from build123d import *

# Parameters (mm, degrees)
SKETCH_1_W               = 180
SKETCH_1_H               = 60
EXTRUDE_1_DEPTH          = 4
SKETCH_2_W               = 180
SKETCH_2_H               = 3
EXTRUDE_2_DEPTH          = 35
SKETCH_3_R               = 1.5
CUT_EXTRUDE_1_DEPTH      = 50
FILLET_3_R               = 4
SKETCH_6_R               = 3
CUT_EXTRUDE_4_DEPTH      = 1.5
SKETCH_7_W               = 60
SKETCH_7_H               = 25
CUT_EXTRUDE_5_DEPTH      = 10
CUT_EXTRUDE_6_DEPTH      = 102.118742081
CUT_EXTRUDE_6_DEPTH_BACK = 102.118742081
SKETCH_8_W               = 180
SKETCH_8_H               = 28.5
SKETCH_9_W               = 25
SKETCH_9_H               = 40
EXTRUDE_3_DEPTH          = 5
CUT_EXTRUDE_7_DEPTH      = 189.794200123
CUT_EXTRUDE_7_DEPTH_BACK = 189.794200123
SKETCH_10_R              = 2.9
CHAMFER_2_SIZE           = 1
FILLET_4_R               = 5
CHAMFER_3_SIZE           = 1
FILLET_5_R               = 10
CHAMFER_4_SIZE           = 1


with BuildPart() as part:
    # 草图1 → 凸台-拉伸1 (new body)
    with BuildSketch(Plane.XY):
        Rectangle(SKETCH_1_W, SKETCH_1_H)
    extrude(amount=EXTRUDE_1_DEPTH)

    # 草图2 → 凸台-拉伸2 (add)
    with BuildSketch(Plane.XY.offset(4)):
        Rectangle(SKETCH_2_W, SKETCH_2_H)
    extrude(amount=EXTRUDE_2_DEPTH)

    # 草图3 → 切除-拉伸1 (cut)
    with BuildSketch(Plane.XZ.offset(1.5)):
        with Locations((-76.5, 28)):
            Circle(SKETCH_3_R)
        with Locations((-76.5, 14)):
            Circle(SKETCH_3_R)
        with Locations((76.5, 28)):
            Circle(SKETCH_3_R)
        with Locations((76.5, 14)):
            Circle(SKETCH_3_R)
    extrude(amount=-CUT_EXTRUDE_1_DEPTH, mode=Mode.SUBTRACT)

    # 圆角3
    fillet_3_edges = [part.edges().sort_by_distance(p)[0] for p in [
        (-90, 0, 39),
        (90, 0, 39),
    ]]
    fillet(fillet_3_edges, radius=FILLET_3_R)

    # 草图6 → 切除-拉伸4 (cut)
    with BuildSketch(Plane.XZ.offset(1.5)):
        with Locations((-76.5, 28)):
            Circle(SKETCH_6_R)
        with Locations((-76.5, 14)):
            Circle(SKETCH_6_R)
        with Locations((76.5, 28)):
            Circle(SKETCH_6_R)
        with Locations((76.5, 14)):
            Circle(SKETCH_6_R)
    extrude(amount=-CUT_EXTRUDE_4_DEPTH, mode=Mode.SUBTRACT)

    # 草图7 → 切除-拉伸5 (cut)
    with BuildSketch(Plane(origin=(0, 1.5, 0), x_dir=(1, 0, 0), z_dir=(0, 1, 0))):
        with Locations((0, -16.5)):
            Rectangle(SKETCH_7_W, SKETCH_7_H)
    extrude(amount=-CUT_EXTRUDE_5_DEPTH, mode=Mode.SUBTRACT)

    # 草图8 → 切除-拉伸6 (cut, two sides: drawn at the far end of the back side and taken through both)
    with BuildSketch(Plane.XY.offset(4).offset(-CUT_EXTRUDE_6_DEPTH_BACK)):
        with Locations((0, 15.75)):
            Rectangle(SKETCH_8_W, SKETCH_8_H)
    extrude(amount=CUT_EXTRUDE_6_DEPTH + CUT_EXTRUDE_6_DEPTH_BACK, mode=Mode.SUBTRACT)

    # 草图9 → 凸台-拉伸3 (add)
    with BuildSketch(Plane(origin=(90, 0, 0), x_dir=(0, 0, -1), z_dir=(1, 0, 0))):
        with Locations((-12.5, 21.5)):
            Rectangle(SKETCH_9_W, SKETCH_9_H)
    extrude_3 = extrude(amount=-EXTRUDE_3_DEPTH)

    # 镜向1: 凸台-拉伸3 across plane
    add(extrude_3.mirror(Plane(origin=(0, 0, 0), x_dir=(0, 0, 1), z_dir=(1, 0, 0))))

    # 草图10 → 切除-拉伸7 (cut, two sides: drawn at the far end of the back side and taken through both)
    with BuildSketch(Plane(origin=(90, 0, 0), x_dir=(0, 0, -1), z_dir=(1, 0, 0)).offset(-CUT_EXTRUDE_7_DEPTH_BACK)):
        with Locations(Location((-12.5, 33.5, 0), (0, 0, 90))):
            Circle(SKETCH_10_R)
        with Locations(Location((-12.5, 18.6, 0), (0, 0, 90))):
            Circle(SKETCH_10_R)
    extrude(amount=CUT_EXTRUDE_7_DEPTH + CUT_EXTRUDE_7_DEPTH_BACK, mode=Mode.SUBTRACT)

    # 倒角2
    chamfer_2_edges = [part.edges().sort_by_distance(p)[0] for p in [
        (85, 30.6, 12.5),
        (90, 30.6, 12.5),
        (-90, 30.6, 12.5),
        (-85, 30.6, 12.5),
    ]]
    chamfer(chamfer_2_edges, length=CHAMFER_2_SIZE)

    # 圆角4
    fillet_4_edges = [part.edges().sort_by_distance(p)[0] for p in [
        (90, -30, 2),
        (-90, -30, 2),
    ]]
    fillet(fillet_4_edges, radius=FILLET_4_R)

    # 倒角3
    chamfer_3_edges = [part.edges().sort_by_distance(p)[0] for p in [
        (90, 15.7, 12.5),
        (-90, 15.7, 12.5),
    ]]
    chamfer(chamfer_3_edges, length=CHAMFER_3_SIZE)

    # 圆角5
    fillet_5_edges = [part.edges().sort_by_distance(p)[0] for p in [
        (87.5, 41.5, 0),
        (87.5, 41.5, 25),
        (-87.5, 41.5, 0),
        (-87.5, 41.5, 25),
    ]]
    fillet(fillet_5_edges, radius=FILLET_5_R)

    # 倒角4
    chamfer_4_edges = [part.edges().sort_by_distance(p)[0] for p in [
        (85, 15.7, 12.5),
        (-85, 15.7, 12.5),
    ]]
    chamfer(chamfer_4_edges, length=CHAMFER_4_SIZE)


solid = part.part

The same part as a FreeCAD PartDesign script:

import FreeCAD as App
import Part
import Sketcher


def edges_at(feature, points):
    """Names of the edges that pass closest to the given points."""
    edges = feature.Shape.Edges
    near = lambda p: min(range(len(edges)), key=lambda i: edges[i].distToShape(Part.Vertex(*p))[0])
    return sorted({f"Edge{near(p) + 1}" for p in points})

doc = App.newDocument("Part")
body = doc.addObject("PartDesign::Body", "Body")

# Sketch on XY plane
sketch1 = body.newObject("Sketcher::SketchObject", "Sketch")
sketch1.AttachmentSupport = (doc.getObject("XY_Plane"), [""])
sketch1.MapMode = "FlatFace"
sketch1.addGeometry([
    Part.LineSegment(App.Vector(-90, 30, 0), App.Vector(-90, -30, 0)),
    Part.LineSegment(App.Vector(-90, -30, 0), App.Vector(90, -30, 0)),
    Part.LineSegment(App.Vector(90, -30, 0), App.Vector(90, 30, 0)),
    Part.LineSegment(App.Vector(90, 30, 0), App.Vector(-90, 30, 0)),
], False)
sketch1.addConstraint([
    Sketcher.Constraint("Coincident", 0, 2, 1, 1),
    Sketcher.Constraint("Coincident", 1, 2, 2, 1),
    Sketcher.Constraint("Coincident", 2, 2, 3, 1),
    Sketcher.Constraint("Coincident", 3, 2, 0, 1),
    Sketcher.Constraint("Vertical", 0),
    Sketcher.Constraint("Horizontal", 1),
    Sketcher.Constraint("Vertical", 2),
    Sketcher.Constraint("Horizontal", 3),
    Sketcher.Constraint("Symmetric", 0, 2, 2, 2, -1, 1),
    Sketcher.Constraint("DistanceX", 1, 1, 1, 2, 180.0),
    Sketcher.Constraint("DistanceY", 0, 2, 0, 1, 60.0),
])
pad1 = body.newObject("PartDesign::Pad", "Pad")
pad1.Profile = sketch1
pad1.Length = 4

# Sketch on XY plane
sketch2 = body.newObject("Sketcher::SketchObject", "Sketch001")
sketch2.AttachmentSupport = (doc.getObject("XY_Plane"), [""])
sketch2.MapMode = "FlatFace"
sketch2.AttachmentOffset = App.Placement(App.Vector(0, 0, 4), App.Rotation())
sketch2.addGeometry([
    Part.LineSegment(App.Vector(-90, 1.5, 0), App.Vector(-90, -1.5, 0)),
    Part.LineSegment(App.Vector(-90, -1.5, 0), App.Vector(90, -1.5, 0)),
    Part.LineSegment(App.Vector(90, -1.5, 0), App.Vector(90, 1.5, 0)),
    Part.LineSegment(App.Vector(90, 1.5, 0), App.Vector(-90, 1.5, 0)),
], False)
sketch2.addConstraint([
    Sketcher.Constraint("Coincident", 0, 2, 1, 1),
    Sketcher.Constraint("Coincident", 1, 2, 2, 1),
    Sketcher.Constraint("Coincident", 2, 2, 3, 1),
    Sketcher.Constraint("Coincident", 3, 2, 0, 1),
    Sketcher.Constraint("Vertical", 0),
    Sketcher.Constraint("Horizontal", 1),
    Sketcher.Constraint("Vertical", 2),
    Sketcher.Constraint("Horizontal", 3),
    Sketcher.Constraint("Symmetric", 0, 2, 2, 2, -1, 1),
    Sketcher.Constraint("DistanceX", 1, 1, 1, 2, 180.0),
    Sketcher.Constraint("DistanceY", 0, 2, 0, 1, 3.0),
])
pad2 = body.newObject("PartDesign::Pad", "Pad001")
pad2.Profile = sketch2
pad2.Length = 35

# Sketch on XZ plane
sketch3 = body.newObject("Sketcher::SketchObject", "Sketch002")
sketch3.AttachmentSupport = (doc.getObject("XZ_Plane"), [""])
sketch3.MapMode = "FlatFace"
sketch3.AttachmentOffset = App.Placement(App.Vector(0, 0, 1.5), App.Rotation())
sketch3.addGeometry([
    Part.Circle(App.Vector(-76.5, 28, 0), App.Vector(0, 0, 1), 1.5),
    Part.Circle(App.Vector(-76.5, 14, 0), App.Vector(0, 0, 1), 1.5),
    Part.Circle(App.Vector(76.5, 28, 0), App.Vector(0, 0, 1), 1.5),
    Part.Circle(App.Vector(76.5, 14, 0), App.Vector(0, 0, 1), 1.5),
], False)
sketch3.addConstraint([
    Sketcher.Constraint("Equal", 0, 1),
    Sketcher.Constraint("Equal", 1, 2),
    Sketcher.Constraint("Equal", 2, 3),
    Sketcher.Constraint("Symmetric", 0, 3, 2, 3, -2),
    Sketcher.Constraint("Symmetric", 1, 3, 3, 3, -2),
    Sketcher.Constraint("Vertical", 0, 3, 1, 3),
    Sketcher.Constraint("Diameter", 0, 3.0),
    Sketcher.Constraint("DistanceY", -1, 1, 0, 3, 28.0),
    Sketcher.Constraint("DistanceY", -1, 1, 1, 3, 14.0),
    Sketcher.Constraint("DistanceX", 0, 3, 2, 3, 153.0),
])
pocket1 = body.newObject("PartDesign::Pocket", "Pocket")
pocket1.Profile = sketch3
pocket1.Length = 50
doc.recompute()

fillet = body.newObject("PartDesign::Fillet", "Fillet")
fillet.Base = (pocket1, edges_at(pocket1, [(-90, 0, 39), (90, 0, 39)]))
fillet.Radius = 4

# Sketch on XZ plane
sketch4 = body.newObject("Sketcher::SketchObject", "Sketch003")
sketch4.AttachmentSupport = (doc.getObject("XZ_Plane"), [""])
sketch4.MapMode = "FlatFace"
sketch4.AttachmentOffset = App.Placement(App.Vector(0, 0, 1.5), App.Rotation())
sketch4.addGeometry([
    Part.Circle(App.Vector(-76.5, 28, 0), App.Vector(0, 0, 1), 3),
    Part.Circle(App.Vector(-76.5, 14, 0), App.Vector(0, 0, 1), 3),
    Part.Circle(App.Vector(76.5, 28, 0), App.Vector(0, 0, 1), 3),
    Part.Circle(App.Vector(76.5, 14, 0), App.Vector(0, 0, 1), 3),
], False)
sketch4.addConstraint([
    Sketcher.Constraint("Equal", 0, 1),
    Sketcher.Constraint("Equal", 1, 2),
    Sketcher.Constraint("Equal", 2, 3),
    Sketcher.Constraint("Symmetric", 0, 3, 2, 3, -2),
    Sketcher.Constraint("Symmetric", 1, 3, 3, 3, -2),
    Sketcher.Constraint("Vertical", 0, 3, 1, 3),
    Sketcher.Constraint("Diameter", 0, 6.0),
    Sketcher.Constraint("DistanceY", -1, 1, 0, 3, 28.0),
    Sketcher.Constraint("DistanceY", -1, 1, 1, 3, 14.0),
    Sketcher.Constraint("DistanceX", 0, 3, 2, 3, 153.0),
])
pocket2 = body.newObject("PartDesign::Pocket", "Pocket001")
pocket2.Profile = sketch4
pocket2.Length = 1.5

# Sketch on XZ plane
sketch5 = body.newObject("Sketcher::SketchObject", "Sketch004")
sketch5.AttachmentSupport = (doc.getObject("XZ_Plane"), [""])
sketch5.MapMode = "FlatFace"
sketch5.AttachmentOffset = App.Placement(App.Vector(0, 0, -1.5), App.Rotation())
sketch5.addGeometry([
    Part.LineSegment(App.Vector(-30, 4, 0), App.Vector(-30, 29, 0)),
    Part.LineSegment(App.Vector(-30, 29, 0), App.Vector(30, 29, 0)),
    Part.LineSegment(App.Vector(30, 29, 0), App.Vector(30, 4, 0)),
    Part.LineSegment(App.Vector(30, 4, 0), App.Vector(-30, 4, 0)),
], False)
sketch5.addConstraint([
    Sketcher.Constraint("Coincident", 0, 2, 1, 1),
    Sketcher.Constraint("Coincident", 1, 2, 2, 1),
    Sketcher.Constraint("Coincident", 2, 2, 3, 1),
    Sketcher.Constraint("Coincident", 3, 2, 0, 1),
    Sketcher.Constraint("Vertical", 0),
    Sketcher.Constraint("Horizontal", 1),
    Sketcher.Constraint("Vertical", 2),
    Sketcher.Constraint("Horizontal", 3),
    Sketcher.Constraint("DistanceX", 1, 1, 1, 2, 60.0),
    Sketcher.Constraint("DistanceY", 0, 1, 0, 2, 25.0),
    Sketcher.Constraint("DistanceX", 0, 2, -1, 1, 30.0),
    Sketcher.Constraint("DistanceY", -1, 1, 0, 2, 29.0),
])
pocket3 = body.newObject("PartDesign::Pocket", "Pocket002")
pocket3.Profile = sketch5
pocket3.Length = 10
pocket3.Reversed = True

# Sketch on XY plane
sketch6 = body.newObject("Sketcher::SketchObject", "Sketch005")
sketch6.AttachmentSupport = (doc.getObject("XY_Plane"), [""])
sketch6.MapMode = "FlatFace"
sketch6.AttachmentOffset = App.Placement(App.Vector(0, 0, 4), App.Rotation())
sketch6.addGeometry([
    Part.LineSegment(App.Vector(-90, 30, 0), App.Vector(-90, 1.5, 0)),
    Part.LineSegment(App.Vector(-90, 1.5, 0), App.Vector(90, 1.5, 0)),
    Part.LineSegment(App.Vector(90, 1.5, 0), App.Vector(90, 30, 0)),
    Part.LineSegment(App.Vector(90, 30, 0), App.Vector(-90, 30, 0)),
], False)
sketch6.addConstraint([
    Sketcher.Constraint("Coincident", 0, 2, 1, 1),
    Sketcher.Constraint("Coincident", 1, 2, 2, 1),
    Sketcher.Constraint("Coincident", 2, 2, 3, 1),
    Sketcher.Constraint("Coincident", 3, 2, 0, 1),
    Sketcher.Constraint("Vertical", 0),
    Sketcher.Constraint("Horizontal", 1),
    Sketcher.Constraint("Vertical", 2),
    Sketcher.Constraint("Horizontal", 3),
    Sketcher.Constraint("DistanceX", 1, 1, 1, 2, 180.0),
    Sketcher.Constraint("DistanceY", 0, 2, 0, 1, 28.5),
    Sketcher.Constraint("DistanceX", 0, 2, -1, 1, 90.0),
    Sketcher.Constraint("DistanceY", -1, 1, 2, 2, 30.0),
])
pocket4 = body.newObject("PartDesign::Pocket", "Pocket003")
pocket4.Profile = sketch6
pocket4.Type = "ThroughAll"
pocket4.Midplane = True

# Sketch on YZ plane
sketch7 = body.newObject("Sketcher::SketchObject", "Sketch006")
sketch7.AttachmentSupport = (doc.getObject("YZ_Plane"), [""])
sketch7.MapMode = "FlatFace"
sketch7.AttachmentOffset = App.Placement(App.Vector(0, 0, 90), App.Rotation())
sketch7.addGeometry([
    Part.LineSegment(App.Vector(41.5, 25, 0), App.Vector(1.5, 25, 0)),
    Part.LineSegment(App.Vector(1.5, 25, 0), App.Vector(1.5, 0, 0)),
    Part.LineSegment(App.Vector(1.5, 0, 0), App.Vector(41.5, 0, 0)),
    Part.LineSegment(App.Vector(41.5, 0, 0), App.Vector(41.5, 25, 0)),
], False)
sketch7.addConstraint([
    Sketcher.Constraint("Coincident", 0, 2, 1, 1),
    Sketcher.Constraint("Coincident", 1, 2, 2, 1),
    Sketcher.Constraint("Coincident", 2, 2, 3, 1),
    Sketcher.Constraint("Coincident", 3, 2, 0, 1),
    Sketcher.Constraint("Horizontal", 0),
    Sketcher.Constraint("Vertical", 1),
    Sketcher.Constraint("Horizontal", 2),
    Sketcher.Constraint("Vertical", 3),
    Sketcher.Constraint("PointOnObject", 1, 2, -1),
    Sketcher.Constraint("DistanceX", 0, 2, 0, 1, 40.0),
    Sketcher.Constraint("DistanceY", 1, 2, 1, 1, 25.0),
    Sketcher.Constraint("DistanceX", -1, 1, 0, 2, 1.5),
])
pad3 = body.newObject("PartDesign::Pad", "Pad002")
pad3.Profile = sketch7
pad3.Length = 5
pad3.Reversed = True
doc.recompute()

mirrored = body.newObject("PartDesign::Mirrored", "Mirrored")
mirrored.Originals = [pad3]
mirrored.MirrorPlane = (doc.getObject("YZ_Plane"), [""])
body.Tip = mirrored

# Sketch on YZ plane
sketch8 = body.newObject("Sketcher::SketchObject", "Sketch007")
sketch8.AttachmentSupport = (doc.getObject("YZ_Plane"), [""])
sketch8.MapMode = "FlatFace"
sketch8.AttachmentOffset = App.Placement(App.Vector(0, 0, 90), App.Rotation())
sketch8.addGeometry([
    Part.Circle(App.Vector(33.5, 12.5, 0), App.Vector(0, 0, 1), 2.9),
    Part.Circle(App.Vector(18.6, 12.5, 0), App.Vector(0, 0, 1), 2.9),
], False)
sketch8.addConstraint([
    Sketcher.Constraint("Equal", 0, 1),
    Sketcher.Constraint("Horizontal", 0, 3, 1, 3),
    Sketcher.Constraint("Diameter", 0, 5.8),
    Sketcher.Constraint("DistanceX", -1, 1, 0, 3, 33.5),
    Sketcher.Constraint("DistanceY", -1, 1, 0, 3, 12.5),
    Sketcher.Constraint("DistanceX", -1, 1, 1, 3, 18.6),
])
pocket5 = body.newObject("PartDesign::Pocket", "Pocket004")
pocket5.Profile = sketch8
pocket5.Type = "ThroughAll"
pocket5.Midplane = True
doc.recompute()

chamfer = body.newObject("PartDesign::Chamfer", "Chamfer")
chamfer.Base = (pocket5, edges_at(pocket5, [
    (85, 30.6, 12.5),
    (90, 30.6, 12.5),
    (-90, 30.6, 12.5),
    (-85, 30.6, 12.5),
]))
chamfer.Size = 1
doc.recompute()

fillet2 = body.newObject("PartDesign::Fillet", "Fillet001")
fillet2.Base = (chamfer, edges_at(chamfer, [(90, -30, 2), (-90, -30, 2)]))
fillet2.Radius = 5
doc.recompute()

chamfer2 = body.newObject("PartDesign::Chamfer", "Chamfer001")
chamfer2.Base = (fillet2, edges_at(fillet2, [(90, 15.7, 12.5), (-90, 15.7, 12.5)]))
chamfer2.Size = 1
doc.recompute()

fillet3 = body.newObject("PartDesign::Fillet", "Fillet002")
fillet3.Base = (chamfer2, edges_at(chamfer2, [
    (87.5, 41.5, 0),
    (87.5, 41.5, 25),
    (-87.5, 41.5, 0),
    (-87.5, 41.5, 25),
]))
fillet3.Radius = 10
doc.recompute()

chamfer3 = body.newObject("PartDesign::Chamfer", "Chamfer002")
chamfer3.Base = (fillet3, edges_at(fillet3, [(85, 15.7, 12.5), (-85, 15.7, 12.5)]))
chamfer3.Size = 1

doc.recompute()
